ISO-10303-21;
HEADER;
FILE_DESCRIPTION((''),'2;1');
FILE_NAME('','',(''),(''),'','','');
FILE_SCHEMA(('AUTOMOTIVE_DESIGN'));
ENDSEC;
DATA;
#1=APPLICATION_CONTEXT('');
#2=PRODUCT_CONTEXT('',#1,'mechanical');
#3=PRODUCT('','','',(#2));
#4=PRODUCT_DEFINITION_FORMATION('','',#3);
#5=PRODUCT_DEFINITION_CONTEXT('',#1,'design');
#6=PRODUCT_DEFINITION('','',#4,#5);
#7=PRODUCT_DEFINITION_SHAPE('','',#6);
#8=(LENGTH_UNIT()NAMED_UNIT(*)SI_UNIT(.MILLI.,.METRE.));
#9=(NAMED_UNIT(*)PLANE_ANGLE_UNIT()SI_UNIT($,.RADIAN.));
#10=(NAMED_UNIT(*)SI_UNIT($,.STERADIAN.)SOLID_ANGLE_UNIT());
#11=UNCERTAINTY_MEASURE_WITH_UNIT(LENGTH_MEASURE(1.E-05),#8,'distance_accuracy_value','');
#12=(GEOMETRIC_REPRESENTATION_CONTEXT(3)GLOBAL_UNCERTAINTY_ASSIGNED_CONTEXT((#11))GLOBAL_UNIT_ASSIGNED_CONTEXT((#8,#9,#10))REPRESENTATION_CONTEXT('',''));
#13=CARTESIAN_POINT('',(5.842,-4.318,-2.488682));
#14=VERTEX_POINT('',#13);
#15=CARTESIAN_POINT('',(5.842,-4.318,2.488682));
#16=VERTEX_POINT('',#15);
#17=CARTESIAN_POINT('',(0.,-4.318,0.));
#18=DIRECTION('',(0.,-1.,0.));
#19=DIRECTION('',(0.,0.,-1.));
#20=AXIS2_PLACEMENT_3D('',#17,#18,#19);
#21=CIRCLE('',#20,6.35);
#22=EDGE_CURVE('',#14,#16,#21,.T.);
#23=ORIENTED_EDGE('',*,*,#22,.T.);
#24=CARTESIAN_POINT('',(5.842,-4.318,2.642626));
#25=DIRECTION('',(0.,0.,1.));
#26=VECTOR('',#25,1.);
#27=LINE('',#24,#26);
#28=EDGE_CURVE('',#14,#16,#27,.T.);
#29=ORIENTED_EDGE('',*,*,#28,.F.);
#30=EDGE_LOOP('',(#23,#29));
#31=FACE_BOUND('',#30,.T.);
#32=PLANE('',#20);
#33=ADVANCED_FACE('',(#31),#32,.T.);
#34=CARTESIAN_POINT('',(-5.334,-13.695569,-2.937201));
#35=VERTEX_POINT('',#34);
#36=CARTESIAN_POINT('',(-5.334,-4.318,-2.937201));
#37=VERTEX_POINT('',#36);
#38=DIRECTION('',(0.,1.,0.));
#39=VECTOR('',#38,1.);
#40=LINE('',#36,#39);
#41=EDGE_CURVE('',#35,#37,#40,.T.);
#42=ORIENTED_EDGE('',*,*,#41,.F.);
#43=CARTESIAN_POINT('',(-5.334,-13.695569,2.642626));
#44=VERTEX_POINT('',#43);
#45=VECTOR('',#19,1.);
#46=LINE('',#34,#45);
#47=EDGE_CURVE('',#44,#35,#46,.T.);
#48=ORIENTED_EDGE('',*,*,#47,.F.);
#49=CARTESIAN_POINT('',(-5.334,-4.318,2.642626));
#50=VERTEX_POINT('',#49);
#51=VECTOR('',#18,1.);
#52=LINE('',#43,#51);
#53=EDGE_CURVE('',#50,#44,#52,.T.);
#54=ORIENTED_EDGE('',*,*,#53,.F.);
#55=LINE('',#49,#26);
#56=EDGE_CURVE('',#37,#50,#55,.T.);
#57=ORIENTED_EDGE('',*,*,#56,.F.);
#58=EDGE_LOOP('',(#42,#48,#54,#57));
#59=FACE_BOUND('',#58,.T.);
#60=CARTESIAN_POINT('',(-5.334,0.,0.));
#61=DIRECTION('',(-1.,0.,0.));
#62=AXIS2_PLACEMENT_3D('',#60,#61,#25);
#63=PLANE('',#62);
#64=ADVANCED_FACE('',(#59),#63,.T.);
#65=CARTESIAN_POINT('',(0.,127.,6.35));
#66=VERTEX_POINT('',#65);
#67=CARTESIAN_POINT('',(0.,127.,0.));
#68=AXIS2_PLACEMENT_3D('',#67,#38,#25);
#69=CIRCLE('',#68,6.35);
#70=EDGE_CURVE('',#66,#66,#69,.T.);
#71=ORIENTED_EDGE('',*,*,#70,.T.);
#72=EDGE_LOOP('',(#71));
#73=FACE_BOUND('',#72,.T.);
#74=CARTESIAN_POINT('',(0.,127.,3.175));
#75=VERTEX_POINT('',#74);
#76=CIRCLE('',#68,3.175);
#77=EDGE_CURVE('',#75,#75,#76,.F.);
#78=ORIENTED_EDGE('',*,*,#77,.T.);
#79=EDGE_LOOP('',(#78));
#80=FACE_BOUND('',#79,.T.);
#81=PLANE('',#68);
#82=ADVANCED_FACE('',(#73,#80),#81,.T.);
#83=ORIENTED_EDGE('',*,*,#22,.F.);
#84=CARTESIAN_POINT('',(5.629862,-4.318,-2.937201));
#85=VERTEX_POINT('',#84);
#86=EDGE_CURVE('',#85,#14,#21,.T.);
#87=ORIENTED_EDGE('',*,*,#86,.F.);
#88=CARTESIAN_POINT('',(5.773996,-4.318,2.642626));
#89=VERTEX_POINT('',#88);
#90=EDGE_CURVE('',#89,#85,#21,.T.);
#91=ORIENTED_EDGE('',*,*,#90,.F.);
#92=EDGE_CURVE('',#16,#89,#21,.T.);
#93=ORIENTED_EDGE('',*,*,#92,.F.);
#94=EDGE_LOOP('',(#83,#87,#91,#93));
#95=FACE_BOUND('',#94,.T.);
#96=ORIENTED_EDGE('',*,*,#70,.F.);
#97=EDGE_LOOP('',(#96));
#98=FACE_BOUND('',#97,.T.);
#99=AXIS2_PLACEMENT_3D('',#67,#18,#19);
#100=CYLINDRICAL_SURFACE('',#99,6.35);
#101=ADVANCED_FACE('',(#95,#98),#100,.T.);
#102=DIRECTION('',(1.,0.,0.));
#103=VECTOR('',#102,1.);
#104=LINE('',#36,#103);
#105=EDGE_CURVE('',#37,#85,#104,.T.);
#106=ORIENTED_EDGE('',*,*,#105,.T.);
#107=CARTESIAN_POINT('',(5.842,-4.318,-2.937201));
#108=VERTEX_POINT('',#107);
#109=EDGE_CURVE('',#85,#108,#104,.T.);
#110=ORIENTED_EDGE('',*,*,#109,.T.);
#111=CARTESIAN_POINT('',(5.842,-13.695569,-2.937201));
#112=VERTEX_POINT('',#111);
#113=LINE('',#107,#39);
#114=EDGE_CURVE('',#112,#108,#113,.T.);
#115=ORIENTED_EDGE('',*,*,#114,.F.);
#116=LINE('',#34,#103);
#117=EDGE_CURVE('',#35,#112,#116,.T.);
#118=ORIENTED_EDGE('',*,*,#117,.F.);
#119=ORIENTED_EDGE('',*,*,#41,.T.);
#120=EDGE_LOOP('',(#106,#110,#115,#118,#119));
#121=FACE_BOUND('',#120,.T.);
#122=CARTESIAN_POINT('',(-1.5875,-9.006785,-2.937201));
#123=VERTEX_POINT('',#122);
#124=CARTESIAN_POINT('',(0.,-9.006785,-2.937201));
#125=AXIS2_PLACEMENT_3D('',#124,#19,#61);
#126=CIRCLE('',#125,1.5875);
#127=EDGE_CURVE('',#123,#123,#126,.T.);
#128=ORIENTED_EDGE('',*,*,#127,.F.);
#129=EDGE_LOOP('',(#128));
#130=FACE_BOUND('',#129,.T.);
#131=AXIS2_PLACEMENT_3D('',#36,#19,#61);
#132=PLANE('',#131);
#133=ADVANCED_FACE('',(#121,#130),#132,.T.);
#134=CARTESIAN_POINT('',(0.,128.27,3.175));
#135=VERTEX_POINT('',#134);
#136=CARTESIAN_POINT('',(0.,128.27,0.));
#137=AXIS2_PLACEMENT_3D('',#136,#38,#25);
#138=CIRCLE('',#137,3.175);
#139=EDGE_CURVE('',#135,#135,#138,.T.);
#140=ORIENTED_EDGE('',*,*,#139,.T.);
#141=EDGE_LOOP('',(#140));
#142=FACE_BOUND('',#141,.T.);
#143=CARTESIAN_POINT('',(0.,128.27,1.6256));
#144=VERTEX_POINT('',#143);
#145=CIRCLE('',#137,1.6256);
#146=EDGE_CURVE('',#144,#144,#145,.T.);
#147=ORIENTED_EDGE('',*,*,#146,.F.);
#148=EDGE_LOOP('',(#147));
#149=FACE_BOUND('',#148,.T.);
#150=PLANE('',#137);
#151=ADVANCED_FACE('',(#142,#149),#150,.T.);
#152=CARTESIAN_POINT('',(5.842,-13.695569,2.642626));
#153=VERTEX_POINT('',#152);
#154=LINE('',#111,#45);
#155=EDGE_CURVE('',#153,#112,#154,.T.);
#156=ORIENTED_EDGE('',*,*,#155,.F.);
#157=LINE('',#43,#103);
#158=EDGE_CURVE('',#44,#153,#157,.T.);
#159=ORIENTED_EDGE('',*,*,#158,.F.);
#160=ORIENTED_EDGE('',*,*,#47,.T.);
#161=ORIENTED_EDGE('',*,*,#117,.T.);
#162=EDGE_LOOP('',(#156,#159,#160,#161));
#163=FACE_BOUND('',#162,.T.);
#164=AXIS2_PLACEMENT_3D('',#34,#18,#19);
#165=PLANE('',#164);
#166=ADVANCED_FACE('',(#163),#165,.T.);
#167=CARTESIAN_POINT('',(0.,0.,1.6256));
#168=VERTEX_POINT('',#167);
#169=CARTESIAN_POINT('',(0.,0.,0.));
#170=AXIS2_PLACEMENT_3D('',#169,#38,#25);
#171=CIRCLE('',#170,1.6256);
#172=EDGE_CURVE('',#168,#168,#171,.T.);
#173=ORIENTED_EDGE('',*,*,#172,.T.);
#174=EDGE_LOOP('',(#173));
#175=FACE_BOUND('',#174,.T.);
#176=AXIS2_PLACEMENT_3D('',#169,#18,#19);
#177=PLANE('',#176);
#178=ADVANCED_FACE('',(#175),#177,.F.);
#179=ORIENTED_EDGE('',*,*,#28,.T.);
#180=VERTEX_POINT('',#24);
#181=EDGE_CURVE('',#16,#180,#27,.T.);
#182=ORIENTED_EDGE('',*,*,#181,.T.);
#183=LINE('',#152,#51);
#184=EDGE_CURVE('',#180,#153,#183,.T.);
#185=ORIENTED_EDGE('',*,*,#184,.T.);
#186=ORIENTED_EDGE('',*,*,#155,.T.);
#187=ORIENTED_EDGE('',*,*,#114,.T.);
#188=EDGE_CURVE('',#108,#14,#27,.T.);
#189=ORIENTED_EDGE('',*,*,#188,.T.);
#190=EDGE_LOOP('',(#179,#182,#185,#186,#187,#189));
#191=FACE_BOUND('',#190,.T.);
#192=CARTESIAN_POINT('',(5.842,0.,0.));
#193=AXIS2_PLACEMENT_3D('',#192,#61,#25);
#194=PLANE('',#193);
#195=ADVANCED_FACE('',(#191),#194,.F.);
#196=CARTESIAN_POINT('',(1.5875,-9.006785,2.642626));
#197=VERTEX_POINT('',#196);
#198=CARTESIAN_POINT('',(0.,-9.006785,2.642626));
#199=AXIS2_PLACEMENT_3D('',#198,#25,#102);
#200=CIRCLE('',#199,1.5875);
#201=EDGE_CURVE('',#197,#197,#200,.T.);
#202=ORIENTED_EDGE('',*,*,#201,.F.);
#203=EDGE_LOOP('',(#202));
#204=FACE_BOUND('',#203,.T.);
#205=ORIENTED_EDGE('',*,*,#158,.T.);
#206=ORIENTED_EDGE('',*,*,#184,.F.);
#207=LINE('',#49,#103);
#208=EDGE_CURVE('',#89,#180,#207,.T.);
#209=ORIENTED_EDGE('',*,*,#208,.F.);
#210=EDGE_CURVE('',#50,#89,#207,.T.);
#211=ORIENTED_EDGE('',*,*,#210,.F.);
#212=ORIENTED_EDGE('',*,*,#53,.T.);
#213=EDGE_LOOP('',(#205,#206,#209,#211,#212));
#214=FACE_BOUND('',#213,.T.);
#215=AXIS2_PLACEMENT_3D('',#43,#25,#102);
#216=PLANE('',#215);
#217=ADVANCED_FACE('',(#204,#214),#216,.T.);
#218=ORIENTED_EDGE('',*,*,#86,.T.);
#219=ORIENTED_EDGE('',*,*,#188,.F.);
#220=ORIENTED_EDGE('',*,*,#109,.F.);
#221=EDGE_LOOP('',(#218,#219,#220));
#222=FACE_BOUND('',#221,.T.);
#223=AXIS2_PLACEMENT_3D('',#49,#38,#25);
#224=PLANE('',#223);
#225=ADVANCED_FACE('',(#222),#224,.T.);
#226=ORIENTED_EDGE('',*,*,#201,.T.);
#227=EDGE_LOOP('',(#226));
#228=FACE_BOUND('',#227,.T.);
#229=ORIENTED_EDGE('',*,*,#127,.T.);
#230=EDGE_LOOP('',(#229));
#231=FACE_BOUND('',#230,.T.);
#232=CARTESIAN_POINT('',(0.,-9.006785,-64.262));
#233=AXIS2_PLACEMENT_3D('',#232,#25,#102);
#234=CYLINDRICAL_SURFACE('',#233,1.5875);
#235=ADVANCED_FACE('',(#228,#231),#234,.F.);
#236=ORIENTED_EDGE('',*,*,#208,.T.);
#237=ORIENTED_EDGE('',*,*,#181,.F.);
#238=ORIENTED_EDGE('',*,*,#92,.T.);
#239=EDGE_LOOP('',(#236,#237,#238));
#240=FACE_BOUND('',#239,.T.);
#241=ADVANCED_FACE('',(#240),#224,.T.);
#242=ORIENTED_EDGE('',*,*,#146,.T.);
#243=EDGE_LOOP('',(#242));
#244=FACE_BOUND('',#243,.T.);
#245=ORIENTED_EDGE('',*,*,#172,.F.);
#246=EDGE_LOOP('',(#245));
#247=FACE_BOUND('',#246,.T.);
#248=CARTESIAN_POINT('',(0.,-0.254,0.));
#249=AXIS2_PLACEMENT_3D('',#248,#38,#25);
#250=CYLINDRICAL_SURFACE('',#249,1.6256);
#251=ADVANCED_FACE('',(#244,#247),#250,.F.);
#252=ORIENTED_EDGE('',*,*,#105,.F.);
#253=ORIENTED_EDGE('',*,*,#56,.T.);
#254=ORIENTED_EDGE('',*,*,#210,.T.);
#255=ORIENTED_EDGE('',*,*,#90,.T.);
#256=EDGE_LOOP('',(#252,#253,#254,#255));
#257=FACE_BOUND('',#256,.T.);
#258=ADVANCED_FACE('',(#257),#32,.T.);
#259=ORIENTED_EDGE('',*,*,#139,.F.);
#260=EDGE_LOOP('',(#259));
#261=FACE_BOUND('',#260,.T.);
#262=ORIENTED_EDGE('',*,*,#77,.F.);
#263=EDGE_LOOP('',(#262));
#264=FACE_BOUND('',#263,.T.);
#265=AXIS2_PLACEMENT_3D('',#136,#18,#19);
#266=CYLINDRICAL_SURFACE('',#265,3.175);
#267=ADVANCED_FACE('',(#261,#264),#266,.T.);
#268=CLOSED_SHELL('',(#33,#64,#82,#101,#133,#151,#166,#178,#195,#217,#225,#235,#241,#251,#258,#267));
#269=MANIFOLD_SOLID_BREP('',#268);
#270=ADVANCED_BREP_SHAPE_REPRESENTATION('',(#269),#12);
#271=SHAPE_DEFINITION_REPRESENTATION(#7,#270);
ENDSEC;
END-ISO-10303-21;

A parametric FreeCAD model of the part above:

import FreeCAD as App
import Part
import Sketcher
from FreeCAD import Vector
Q = App.Units.Quantity


def add_polygon(sketch, points):
    """Adds a closed chain of lines whose ends are joined by coincident constraints."""
    first, n = sketch.GeometryCount, len(points)
    for a, b in zip(points, points[1:] + points[:1]):
        sketch.addGeometry(Part.LineSegment(App.Vector(*a, 0), App.Vector(*b, 0)), False)
    for i in range(n):
        sketch.addConstraint(Sketcher.Constraint("Coincident", first + i, 2, first + (i + 1) % n, 1))

doc = App.newDocument("Part")
body = doc.addObject("PartDesign::Body", "Body")

# Sketch on XZ plane
sketch1 = doc.addObject("Sketcher::SketchObject", "Sketch")
body.addObject(sketch1)
sketch1.AttachmentSupport = (doc.XZ_Plane, [""])
sketch1.MapMode = "FlatFace"
sketch1.addGeometry(Part.Circle(Vector(0, 0, 0), Vector(0, 0, 1), 6), False)
sketch1.addConstraint([
    Sketcher.Constraint("Coincident", 0, 3, -1, 1),
    Sketcher.Constraint("Diameter", 0, Q("0.5 in")),
])
pad1 = doc.addObject("PartDesign::Pad", "Pad")
body.addObject(pad1)
pad1.Profile = sketch1
pad1.Length = Q("5 in")
pad1.Reversed = True

# Sketch on XZ plane
sketch2 = doc.addObject("Sketcher::SketchObject", "Sketch001")
body.addObject(sketch2)
sketch2.AttachmentSupport = (doc.XZ_Plane, [""])
sketch2.MapMode = "FlatFace"
sketch2.addGeometry(Part.Circle(Vector(0, 0, 0), Vector(0, 0, 1), 3.2), False)
sketch2.addConstraint([
    Sketcher.Constraint("Coincident", 0, 3, -1, 1),
    Sketcher.Constraint("Diameter", 0, Q("0.25 in")),
])
pad2 = doc.addObject("PartDesign::Pad", "Pad001")
body.addObject(pad2)
pad2.Profile = sketch2
pad2.Length = Q("5.05 in")
pad2.Reversed = True

# Sketch on XZ plane
sketch3 = doc.addObject("Sketcher::SketchObject", "Sketch002")
body.addObject(sketch3)
sketch3.AttachmentSupport = (doc.XZ_Plane, [""])
sketch3.MapMode = "FlatFace"
sketch3.addGeometry(Part.Circle(Vector(0, 0, 0), Vector(0, 0, 1), 1.6), False)
sketch3.addConstraint([
    Sketcher.Constraint("Coincident", 0, 3, -1, 1),
    Sketcher.Constraint("Diameter", 0, Q("0.128 in")),
])
pocket1 = doc.addObject("PartDesign::Pocket", "Pocket")
body.addObject(pocket1)
pocket1.Profile = sketch3
pocket1.Type = "ThroughAll"
pocket1.Midplane = True

# Sketch on XZ plane
sketch4 = doc.addObject("Sketcher::SketchObject", "Sketch003")
body.addObject(sketch4)
sketch4.AttachmentSupport = (doc.XZ_Plane, [""])
sketch4.MapMode = "FlatFace"
sketch4.addGeometry(Part.Circle(Vector(0, 0, 0), Vector(0, 0, 1), 6), False)
sketch4.addConstraint([
    Sketcher.Constraint("Coincident", 0, 3, -1, 1),
    Sketcher.Constraint("Diameter", 0, Q("0.5 in")),
])
pad3 = doc.addObject("PartDesign::Pad", "Pad002")
body.addObject(pad3)
pad3.Profile = sketch4
pad3.Length = Q("0.17 in")

# Sketch on YZ plane
sketch5 = doc.addObject("Sketcher::SketchObject", "Sketch004")
body.addObject(sketch5)
sketch5.AttachmentSupport = (doc.YZ_Plane, [""])
sketch5.MapMode = "FlatFace"
add_polygon(sketch5, [(-4, 3), (-14, 3), (-14, -3), (-4, -3)])  # lines 0-3
sketch5.addConstraint([
    Sketcher.Constraint("Horizontal", 0),
    Sketcher.Constraint("Vertical", 1),
    Sketcher.Constraint("Horizontal", 2),
    Sketcher.Constraint("Vertical", 3),
    Sketcher.Constraint("DistanceX", 2, 2, -1, 1, Q("0.17 in")),
    Sketcher.Constraint("DistanceX", 0, 2, 0, 1, Q("9.377569 mm")),
    Sketcher.Constraint("DistanceY", 1, 2, -1, 1, Q("2.937201 mm")),
    Sketcher.Constraint("DistanceY", 1, 2, 1, 1, Q("5.579827 mm")),
])
pad4 = doc.addObject("PartDesign::Pad", "Pad003")
body.addObject(pad4)
pad4.Profile = sketch5
pad4.Type = "TwoLengths"
pad4.Length = Q("0.23 in")
pad4.Length2 = Q("0.21 in")

# Sketch on XY plane
sketch6 = doc.addObject("Sketcher::SketchObject", "Sketch005")
body.addObject(sketch6)
sketch6.AttachmentSupport = (doc.XY_Plane, [""])
sketch6.MapMode = "FlatFace"
sketch6.addGeometry(Part.Circle(Vector(0, -9, 0), Vector(0, 0, 1), 1.6), False)
sketch6.addConstraint([
    Sketcher.Constraint("PointOnObject", 0, 3, -2),
    Sketcher.Constraint("Diameter", 0, Q("0.125 in")),
    Sketcher.Constraint("DistanceY", 0, 3, -1, 1, Q("9.006785 mm")),
])
pocket2 = doc.addObject("PartDesign::Pocket", "Pocket001")
body.addObject(pocket2)
pocket2.Profile = sketch6
pocket2.Type = "ThroughAll"
pocket2.Midplane = True

doc.recompute()
